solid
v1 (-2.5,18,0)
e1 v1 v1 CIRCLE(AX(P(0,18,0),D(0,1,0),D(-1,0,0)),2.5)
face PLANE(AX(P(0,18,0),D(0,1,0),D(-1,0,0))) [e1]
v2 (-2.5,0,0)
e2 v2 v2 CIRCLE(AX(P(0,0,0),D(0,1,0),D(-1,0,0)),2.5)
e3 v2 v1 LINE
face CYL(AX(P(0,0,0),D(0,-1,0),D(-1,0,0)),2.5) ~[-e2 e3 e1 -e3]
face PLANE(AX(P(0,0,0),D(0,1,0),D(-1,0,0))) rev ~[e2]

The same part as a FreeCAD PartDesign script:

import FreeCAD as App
import Part
import Sketcher
Q = App.Units.Quantity

doc = App.newDocument("Part")
body = doc.addObject("PartDesign::Body", "Body")

# Sketch on XZ plane
sketch1 = body.newObject("Sketcher::SketchObject", "Sketch")
sketch1.AttachmentSupport = (doc.getObject("XZ_Plane"), [""])
sketch1.MapMode = "FlatFace"
sketch1.addGeometry(Part.Circle(App.Vector(0, 0, 0), App.Vector(0, 0, 1), 2.5), False)
sketch1.addConstraint([
    Sketcher.Constraint("Coincident", 0, 3, -1, 1),
    Sketcher.Constraint("Diameter", 0, Q("5 mm")),
])
pad1 = body.newObject("PartDesign::Pad", "Pad")
pad1.Profile = sketch1
pad1.Length = 18
pad1.Reversed = True

doc.recompute()
